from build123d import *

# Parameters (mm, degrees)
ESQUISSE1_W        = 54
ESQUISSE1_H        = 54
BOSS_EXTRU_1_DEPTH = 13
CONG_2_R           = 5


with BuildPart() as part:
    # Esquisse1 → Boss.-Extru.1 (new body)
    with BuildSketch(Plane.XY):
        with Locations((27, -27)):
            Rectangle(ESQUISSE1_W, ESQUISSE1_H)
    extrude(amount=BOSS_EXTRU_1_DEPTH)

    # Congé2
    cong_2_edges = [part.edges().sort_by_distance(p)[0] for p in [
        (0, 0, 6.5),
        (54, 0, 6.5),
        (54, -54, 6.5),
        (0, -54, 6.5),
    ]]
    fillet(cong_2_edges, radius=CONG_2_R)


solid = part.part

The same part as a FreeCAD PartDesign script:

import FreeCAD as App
import Part
import Sketcher


def edges_at(feature, points):
    """Names of the edges that pass closest to the given points."""
    edges = feature.Shape.Edges
    near = lambda p: min(range(len(edges)), key=lambda i: edges[i].distToShape(Part.Vertex(*p))[0])
    return sorted({f"Edge{near(p) + 1}" for p in points})

doc = App.newDocument("Part")
body = doc.addObject("PartDesign::Body", "Body")

# Sketch on XY plane
sketch1 = body.newObject("Sketcher::SketchObject", "Sketch")
sketch1.AttachmentSupport = (doc.getObject("XY_Plane"), [""])
sketch1.MapMode = "FlatFace"
sketch1.addGeometry(Part.LineSegment(App.Vector(0, 0, 0), App.Vector(0, -54, 0)), False)
sketch1.addGeometry(Part.LineSegment(App.Vector(0, -54, 0), App.Vector(54, -54, 0)), False)
sketch1.addGeometry(Part.LineSegment(App.Vector(54, -54, 0), App.Vector(54, 0, 0)), False)
sketch1.addGeometry(Part.LineSegment(App.Vector(54, 0, 0), App.Vector(0, 0, 0)), False)
sketch1.addConstraint(Sketcher.Constraint("Coincident", 0, 2, 1, 1))
sketch1.addConstraint(Sketcher.Constraint("Coincident", 1, 2, 2, 1))
sketch1.addConstraint(Sketcher.Constraint("Coincident", 2, 2, 3, 1))
sketch1.addConstraint(Sketcher.Constraint("Coincident", 3, 2, 0, 1))
sketch1.addConstraint(Sketcher.Constraint("Vertical", 0))
sketch1.addConstraint(Sketcher.Constraint("Horizontal", 1))
sketch1.addConstraint(Sketcher.Constraint("Vertical", 2))
sketch1.addConstraint(Sketcher.Constraint("Horizontal", 3))
sketch1.addConstraint(Sketcher.Constraint("Coincident", 3, 2, -1, 1))
sketch1.addConstraint(Sketcher.Constraint("Equal", 3, 0))
sketch1.addConstraint(Sketcher.Constraint("DistanceX", 1, 1, 1, 2, 54.0))
pad1 = body.newObject("PartDesign::Pad", "Pad")
pad1.Profile = sketch1
pad1.Length = 13
doc.recompute()

fillet = body.newObject("PartDesign::Fillet", "Fillet")
fillet.Base = (pad1, edges_at(pad1, [
    (0, 0, 6.5),
    (54, 0, 6.5),
    (54, -54, 6.5),
    (0, -54, 6.5),
]))
fillet.Radius = 5

doc.recompute()
